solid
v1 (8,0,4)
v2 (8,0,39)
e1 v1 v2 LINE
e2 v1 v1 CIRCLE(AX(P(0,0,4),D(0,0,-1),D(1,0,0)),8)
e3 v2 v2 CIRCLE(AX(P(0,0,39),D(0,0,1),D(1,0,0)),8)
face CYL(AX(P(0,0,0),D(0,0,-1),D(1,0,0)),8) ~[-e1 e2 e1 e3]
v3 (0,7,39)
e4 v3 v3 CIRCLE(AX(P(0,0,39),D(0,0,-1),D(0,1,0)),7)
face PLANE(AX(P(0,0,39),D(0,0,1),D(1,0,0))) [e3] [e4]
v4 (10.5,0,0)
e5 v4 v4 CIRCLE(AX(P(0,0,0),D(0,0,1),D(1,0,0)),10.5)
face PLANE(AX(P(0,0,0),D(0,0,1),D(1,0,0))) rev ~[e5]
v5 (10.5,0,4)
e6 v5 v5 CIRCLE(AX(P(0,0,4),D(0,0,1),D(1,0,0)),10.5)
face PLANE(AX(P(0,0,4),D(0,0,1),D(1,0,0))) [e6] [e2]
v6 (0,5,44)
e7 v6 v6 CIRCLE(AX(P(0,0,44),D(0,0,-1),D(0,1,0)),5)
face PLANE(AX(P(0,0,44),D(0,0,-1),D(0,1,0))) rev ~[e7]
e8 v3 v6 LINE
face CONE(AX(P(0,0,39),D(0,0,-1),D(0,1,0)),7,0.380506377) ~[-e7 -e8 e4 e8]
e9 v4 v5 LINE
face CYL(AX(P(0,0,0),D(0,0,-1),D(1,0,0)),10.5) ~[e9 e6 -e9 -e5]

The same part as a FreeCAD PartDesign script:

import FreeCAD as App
import Part
import Sketcher
from FreeCAD import Vector
Q = App.Units.Quantity

doc = App.newDocument("Part")
params = doc.addObject("Spreadsheet::Sheet", "Params")
for row, (alias, value) in enumerate([
    ("sketch1_diameter", "21 mm"),
    ("pad1_length", "4 mm"),
    ("sketch2_diameter", "16 mm"),
    ("pad2_length", "39 mm"),
    ("sketch3_width", "5 mm"),
    ("sketch3_width2", "7 mm"),
    ("revolution_angle", "360 deg"),
], start=1):
    params.set(f"A{row}", alias)
    params.set(f"B{row}", "=" + value)
    params.setAlias(f"B{row}", alias)

body = doc.addObject("PartDesign::Body", "Body")

# Sketch on XY plane
sketch1 = body.newObject("Sketcher::SketchObject", "Sketch")
sketch1.AttachmentSupport = (doc.getObject("XY_Plane"), [""])
sketch1.MapMode = "FlatFace"
sketch1.addGeometry(Part.Circle(Vector(0, 0, 0), Vector(0, 0, 1), 10), False)
sketch1.addConstraint(Sketcher.Constraint("Coincident", 0, 3, -1, 1))
sketch1.addConstraint(Sketcher.Constraint("Diameter", 0, Q("21 mm")))
sketch1.setExpression("Constraints[1]", "Params.sketch1_diameter")
pad1 = body.newObject("PartDesign::Pad", "Pad")
pad1.Profile = sketch1
pad1.setExpression("Length", "Params.pad1_length")

# Sketch on XY plane
sketch2 = body.newObject("Sketcher::SketchObject", "Sketch001")
sketch2.AttachmentSupport = (doc.getObject("XY_Plane"), [""])
sketch2.MapMode = "FlatFace"
sketch2.addGeometry(Part.Circle(Vector(0, 0, 0), Vector(0, 0, 1), 8), False)
sketch2.addConstraint(Sketcher.Constraint("Coincident", 0, 3, -1, 1))
sketch2.addConstraint(Sketcher.Constraint("Diameter", 0, Q("16 mm")))
sketch2.setExpression("Constraints[1]", "Params.sketch2_diameter")
pad2 = body.newObject("PartDesign::Pad", "Pad001")
pad2.Profile = sketch2
pad2.setExpression("Length", "Params.pad2_length")

# Sketch on YZ plane
sketch3 = body.newObject("Sketcher::SketchObject", "Sketch002")
sketch3.AttachmentSupport = (doc.getObject("YZ_Plane"), [""])
sketch3.MapMode = "FlatFace"
sketch3.addGeometry(Part.LineSegment(Vector(5, 44, 0), Vector(0, 44, 0)), False)
sketch3.addGeometry(Part.LineSegment(Vector(0, 44, 0), Vector(0, 39, 0)), False)
sketch3.addGeometry(Part.LineSegment(Vector(0, 39, 0), Vector(7, 39, 0)), False)
sketch3.addGeometry(Part.LineSegment(Vector(7, 39, 0), Vector(5, 44, 0)), False)
sketch3.addConstraint(Sketcher.Constraint("Coincident", 0, 2, 1, 1))
sketch3.addConstraint(Sketcher.Constraint("Coincident", 1, 2, 2, 1))
sketch3.addConstraint(Sketcher.Constraint("Coincident", 2, 2, 3, 1))
sketch3.addConstraint(Sketcher.Constraint("Coincident", 3, 2, 0, 1))
sketch3.addConstraint(Sketcher.Constraint("Horizontal", 0))
sketch3.addConstraint(Sketcher.Constraint("Vertical", 1))
sketch3.addConstraint(Sketcher.Constraint("Horizontal", 2))
sketch3.addConstraint(Sketcher.Constraint("PointOnObject", 0, 2, -2))
sketch3.addConstraint(Sketcher.Constraint("Equal", 0, 1))
sketch3.addConstraint(Sketcher.Constraint("DistanceX", 0, 2, 0, 1, Q("5 mm")))
sketch3.addConstraint(Sketcher.Constraint("DistanceX", 2, 1, 2, 2, Q("7 mm")))
sketch3.addConstraint(Sketcher.Constraint("DistanceY", -1, 1, 0, 2, Q("44 mm")))
sketch3.setExpression("Constraints[9]", "Params.sketch3_width")
sketch3.setExpression("Constraints[10]", "Params.sketch3_width2")
revolution = body.newObject("PartDesign::Revolution", "Revolution")
revolution.Profile = sketch3
revolution.ReferenceAxis = (sketch3, ["V_Axis"])
revolution.setExpression("Angle", "Params.revolution_angle")

doc.recompute()
